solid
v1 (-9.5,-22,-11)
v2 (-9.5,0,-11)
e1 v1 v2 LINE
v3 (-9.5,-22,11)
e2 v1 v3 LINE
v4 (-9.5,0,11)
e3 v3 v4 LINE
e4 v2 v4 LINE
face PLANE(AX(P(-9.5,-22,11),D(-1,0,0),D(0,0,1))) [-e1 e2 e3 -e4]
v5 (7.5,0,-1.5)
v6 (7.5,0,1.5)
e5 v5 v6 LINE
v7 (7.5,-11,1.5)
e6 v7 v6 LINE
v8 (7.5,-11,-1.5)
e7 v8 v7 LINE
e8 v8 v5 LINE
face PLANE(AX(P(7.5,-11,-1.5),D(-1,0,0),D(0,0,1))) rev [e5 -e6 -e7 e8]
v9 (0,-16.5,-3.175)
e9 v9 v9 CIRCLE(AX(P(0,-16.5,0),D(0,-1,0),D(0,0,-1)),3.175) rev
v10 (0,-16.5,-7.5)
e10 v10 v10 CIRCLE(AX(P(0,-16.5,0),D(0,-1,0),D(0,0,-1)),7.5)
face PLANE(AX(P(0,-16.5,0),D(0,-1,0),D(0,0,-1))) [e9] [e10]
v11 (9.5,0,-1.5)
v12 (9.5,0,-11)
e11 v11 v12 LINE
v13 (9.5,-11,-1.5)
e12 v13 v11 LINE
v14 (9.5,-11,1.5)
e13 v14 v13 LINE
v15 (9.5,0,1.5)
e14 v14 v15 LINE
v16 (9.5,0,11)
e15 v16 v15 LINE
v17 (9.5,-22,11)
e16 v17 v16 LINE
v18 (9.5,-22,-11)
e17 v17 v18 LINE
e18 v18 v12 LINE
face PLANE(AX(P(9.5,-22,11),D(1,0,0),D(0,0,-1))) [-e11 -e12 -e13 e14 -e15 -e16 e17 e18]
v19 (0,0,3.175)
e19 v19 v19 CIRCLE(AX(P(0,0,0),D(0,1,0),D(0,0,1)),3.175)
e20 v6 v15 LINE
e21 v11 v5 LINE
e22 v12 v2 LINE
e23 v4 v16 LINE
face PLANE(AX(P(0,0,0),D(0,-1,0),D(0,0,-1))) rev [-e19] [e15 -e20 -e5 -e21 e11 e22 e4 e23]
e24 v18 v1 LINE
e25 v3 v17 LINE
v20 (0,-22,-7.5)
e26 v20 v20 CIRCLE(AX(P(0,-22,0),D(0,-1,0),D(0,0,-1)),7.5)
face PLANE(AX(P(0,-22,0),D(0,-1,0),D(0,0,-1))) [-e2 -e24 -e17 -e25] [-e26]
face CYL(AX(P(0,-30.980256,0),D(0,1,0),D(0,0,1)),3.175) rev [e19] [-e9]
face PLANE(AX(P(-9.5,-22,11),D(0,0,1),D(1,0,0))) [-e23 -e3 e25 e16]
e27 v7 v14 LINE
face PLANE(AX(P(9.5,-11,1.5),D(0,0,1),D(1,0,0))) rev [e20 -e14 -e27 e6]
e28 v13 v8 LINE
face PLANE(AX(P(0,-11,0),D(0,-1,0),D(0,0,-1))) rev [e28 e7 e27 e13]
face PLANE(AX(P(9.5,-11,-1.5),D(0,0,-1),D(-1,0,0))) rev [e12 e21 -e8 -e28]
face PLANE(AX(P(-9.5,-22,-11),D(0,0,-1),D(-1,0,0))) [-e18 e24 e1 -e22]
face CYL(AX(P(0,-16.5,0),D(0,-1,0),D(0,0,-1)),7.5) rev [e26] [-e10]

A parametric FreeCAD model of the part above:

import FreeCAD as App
import Part
import Sketcher

V = App.Vector

doc = App.newDocument("Part")
params = doc.addObject("Spreadsheet::Sheet", "Params")
for row, (alias, value) in enumerate([
    ("sketch1_width", "19 mm"),
    ("sketch1_height", "22 mm"),
    ("pad1_length", "22 mm"),
    ("sketch2_diameter", "6.35 mm"),
    ("pocket1_length", "22 mm"),
    ("sketch3_diameter", "15 mm"),
    ("pocket2_length", "5.5 mm"),
    ("sketch4_width", "2 mm"),
    ("sketch4_height", "3 mm"),
    ("pocket3_length", "11 mm"),
], start=1):
    params.set(f"A{row}", alias)
    params.set(f"B{row}", "=" + value)
    params.setAlias(f"B{row}", alias)

body = doc.addObject("PartDesign::Body", "Body")

# Sketch on XZ plane
sketch1 = body.newObject("Sketcher::SketchObject", "Sketch")
sketch1.AttachmentSupport = (doc.getObject("XZ_Plane"), [""])
sketch1.MapMode = "FlatFace"
sketch1.addGeometry([
    Part.LineSegment(V(-9.5, -11, 0), V(-9.5, 11, 0)),
    Part.LineSegment(V(-9.5, 11, 0), V(9.5, 11, 0)),
    Part.LineSegment(V(9.5, 11, 0), V(9.5, -11, 0)),
    Part.LineSegment(V(9.5, -11, 0), V(-9.5, -11, 0)),
], False)
sketch1.addConstraint([
    Sketcher.Constraint("Coincident", 0, 2, 1, 1),
    Sketcher.Constraint("Coincident", 1, 2, 2, 1),
    Sketcher.Constraint("Coincident", 2, 2, 3, 1),
    Sketcher.Constraint("Coincident", 3, 2, 0, 1),
    Sketcher.Constraint("Vertical", 0),
    Sketcher.Constraint("Horizontal", 1),
    Sketcher.Constraint("Vertical", 2),
    Sketcher.Constraint("Horizontal", 3),
    Sketcher.Constraint("Symmetric", 0, 2, 2, 2, -1, 1),
    Sketcher.Constraint("DistanceX", 1, 1, 1, 2, 19.0),
    Sketcher.Constraint("DistanceY", 0, 1, 0, 2, 22.0),
])
sketch1.setExpression("Constraints[9]", "Params.sketch1_width")
sketch1.setExpression("Constraints[10]", "Params.sketch1_height")
pad1 = body.newObject("PartDesign::Pad", "Pad")
pad1.Profile = sketch1
pad1.setExpression("Length", "Params.pad1_length")

# Sketch on XZ plane
sketch2 = body.newObject("Sketcher::SketchObject", "Sketch001")
sketch2.AttachmentSupport = (doc.getObject("XZ_Plane"), [""])
sketch2.MapMode = "FlatFace"
sketch2.addGeometry(Part.Circle(V(0, 0, 0), V(0, 0, 1), 3.175), False)
sketch2.addConstraint([
    Sketcher.Constraint("Coincident", 0, 3, -1, 1),
    Sketcher.Constraint("Diameter", 0, 6.35),
])
sketch2.setExpression("Constraints[1]", "Params.sketch2_diameter")
pocket1 = body.newObject("PartDesign::Pocket", "Pocket")
pocket1.Profile = sketch2
pocket1.setExpression("Length", "Params.pocket1_length")
pocket1.Reversed = True

# Sketch on XZ plane
sketch3 = body.newObject("Sketcher::SketchObject", "Sketch002")
sketch3.AttachmentSupport = (doc.getObject("XZ_Plane"), [""])
sketch3.MapMode = "FlatFace"
sketch3.AttachmentOffset = App.Placement(V(0, 0, 22), App.Rotation())
sketch3.addGeometry(Part.Circle(V(0, 0, 0), V(0, 0, 1), 7.5), False)
sketch3.addConstraint([
    Sketcher.Constraint("Coincident", 0, 3, -1, 1),
    Sketcher.Constraint("Diameter", 0, 15.0),
])
sketch3.setExpression("Constraints[1]", "Params.sketch3_diameter")
pocket2 = body.newObject("PartDesign::Pocket", "Pocket001")
pocket2.Profile = sketch3
pocket2.setExpression("Length", "Params.pocket2_length")

# Sketch on XZ plane
sketch4 = body.newObject("Sketcher::SketchObject", "Sketch003")
sketch4.AttachmentSupport = (doc.getObject("XZ_Plane"), [""])
sketch4.MapMode = "FlatFace"
sketch4.addGeometry([
    Part.LineSegment(V(7.5, -1.5, 0), V(7.5, 1.5, 0)),
    Part.LineSegment(V(7.5, 1.5, 0), V(9.5, 1.5, 0)),
    Part.LineSegment(V(9.5, 1.5, 0), V(9.5, -1.5, 0)),
    Part.LineSegment(V(9.5, -1.5, 0), V(7.5, -1.5, 0)),
], False)
sketch4.addConstraint([
    Sketcher.Constraint("Coincident", 0, 2, 1, 1),
    Sketcher.Constraint("Coincident", 1, 2, 2, 1),
    Sketcher.Constraint("Coincident", 2, 2, 3, 1),
    Sketcher.Constraint("Coincident", 3, 2, 0, 1),
    Sketcher.Constraint("Vertical", 0),
    Sketcher.Constraint("Horizontal", 1),
    Sketcher.Constraint("Vertical", 2),
    Sketcher.Constraint("Horizontal", 3),
    Sketcher.Constraint("DistanceX", 1, 1, 1, 2, 2.0),
    Sketcher.Constraint("DistanceY", 0, 1, 0, 2, 3.0),
    Sketcher.Constraint("DistanceX", -1, 1, 0, 2, 7.5),
    Sketcher.Constraint("DistanceY", -1, 1, 0, 2, 1.5),
])
sketch4.setExpression("Constraints[8]", "Params.sketch4_width")
sketch4.setExpression("Constraints[9]", "Params.sketch4_height")
pocket3 = body.newObject("PartDesign::Pocket", "Pocket002")
pocket3.Profile = sketch4
pocket3.setExpression("Length", "Params.pocket3_length")
pocket3.Reversed = True

doc.recompute()
